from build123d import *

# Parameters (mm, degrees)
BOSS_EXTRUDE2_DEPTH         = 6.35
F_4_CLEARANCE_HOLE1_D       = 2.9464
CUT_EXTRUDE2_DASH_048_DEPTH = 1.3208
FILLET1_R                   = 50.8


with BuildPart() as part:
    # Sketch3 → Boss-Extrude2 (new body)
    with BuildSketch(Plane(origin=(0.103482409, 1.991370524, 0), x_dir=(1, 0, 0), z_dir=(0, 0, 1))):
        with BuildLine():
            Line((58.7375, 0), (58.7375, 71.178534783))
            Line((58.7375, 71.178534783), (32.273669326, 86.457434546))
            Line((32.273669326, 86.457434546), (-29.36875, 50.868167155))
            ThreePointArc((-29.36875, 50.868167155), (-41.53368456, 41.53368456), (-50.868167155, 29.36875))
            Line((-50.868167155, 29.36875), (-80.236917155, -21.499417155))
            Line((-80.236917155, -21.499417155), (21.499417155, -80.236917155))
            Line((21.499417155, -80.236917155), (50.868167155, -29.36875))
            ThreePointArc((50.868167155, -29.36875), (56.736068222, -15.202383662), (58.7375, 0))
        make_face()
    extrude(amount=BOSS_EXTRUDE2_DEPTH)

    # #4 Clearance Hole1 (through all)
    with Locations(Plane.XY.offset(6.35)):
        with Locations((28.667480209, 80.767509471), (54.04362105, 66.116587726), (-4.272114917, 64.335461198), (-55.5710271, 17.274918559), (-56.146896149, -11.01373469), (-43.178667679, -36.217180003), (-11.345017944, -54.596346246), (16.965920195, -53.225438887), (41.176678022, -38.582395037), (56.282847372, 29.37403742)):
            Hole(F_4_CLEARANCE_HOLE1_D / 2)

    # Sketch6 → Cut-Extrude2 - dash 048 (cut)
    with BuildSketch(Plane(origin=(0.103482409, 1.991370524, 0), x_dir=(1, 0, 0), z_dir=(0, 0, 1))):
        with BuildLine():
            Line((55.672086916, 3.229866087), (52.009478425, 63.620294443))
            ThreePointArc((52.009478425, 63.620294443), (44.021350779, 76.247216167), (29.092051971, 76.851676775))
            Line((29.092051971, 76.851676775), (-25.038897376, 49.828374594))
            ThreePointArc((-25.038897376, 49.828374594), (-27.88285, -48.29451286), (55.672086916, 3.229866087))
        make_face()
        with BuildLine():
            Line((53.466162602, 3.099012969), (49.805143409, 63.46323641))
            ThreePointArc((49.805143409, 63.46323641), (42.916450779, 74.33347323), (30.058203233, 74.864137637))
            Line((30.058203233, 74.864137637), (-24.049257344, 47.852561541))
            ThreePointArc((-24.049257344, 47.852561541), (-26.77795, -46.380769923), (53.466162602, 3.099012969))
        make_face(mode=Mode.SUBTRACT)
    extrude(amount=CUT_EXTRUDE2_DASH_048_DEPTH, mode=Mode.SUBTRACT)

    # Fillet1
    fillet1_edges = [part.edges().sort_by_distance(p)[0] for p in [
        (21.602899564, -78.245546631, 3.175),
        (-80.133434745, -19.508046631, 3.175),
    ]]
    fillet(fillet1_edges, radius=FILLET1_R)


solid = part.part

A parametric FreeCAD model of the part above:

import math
import FreeCAD as App
import Part
import Sketcher

V = App.Vector
Q = App.Units.Quantity


def edges_at(feature, points):
    """Names of the edges that pass closest to the given points."""
    edges = feature.Shape.Edges
    near = lambda p: min(range(len(edges)), key=lambda i: edges[i].distToShape(Part.Vertex(*p))[0])
    return sorted({f"Edge{near(p) + 1}" for p in points})

doc = App.newDocument("Part")
body = doc.addObject("PartDesign::Body", "Body")

sketch1 = body.newObject("Sketcher::SketchObject", "Sketch")
sketch1.AttachmentSupport = (doc.getObject("XY_Plane"), [""])
sketch1.MapMode = "FlatFace"
sketch1.addGeometry(Part.LineSegment(V(58.840982, 1.991371, 0), V(58.840982, 73.169905, 0)), False)
sketch1.addGeometry(Part.LineSegment(V(58.840982, 73.169905, 0), V(32.377152, 88.448805, 0)), False)
sketch1.addGeometry(Part.LineSegment(V(32.377152, 88.448805, 0), V(-29.265268, 52.859538, 0)), False)
sketch1.addGeometry(Part.ArcOfCircle(Part.Circle(V(0.103482, 1.991371, 0), V(0, 0, 1), 58.7375), math.radians(120), math.radians(150)), False)
sketch1.addGeometry(Part.LineSegment(V(-50.764685, 31.360121, 0), V(-80.133435, -19.508047, 0)), False)
sketch1.addGeometry(Part.LineSegment(V(-80.133435, -19.508047, 0), V(21.6029, -78.245547, 0)), False)
sketch1.addGeometry(Part.LineSegment(V(21.6029, -78.245547, 0), V(50.97165, -27.377379, 0)), False)
sketch1.addGeometry(Part.ArcOfCircle(Part.Circle(V(0.103482, 1.991371, 0), V(0, 0, 1), 58.7375), math.radians(-30), math.radians(0)), False)
sketch1.addConstraint(Sketcher.Constraint("Coincident", 0, 2, 1, 1))
sketch1.addConstraint(Sketcher.Constraint("Coincident", 1, 2, 2, 1))
sketch1.addConstraint(Sketcher.Constraint("Tangent", 2, 2, 3, 1))
sketch1.addConstraint(Sketcher.Constraint("Tangent", 3, 2, 4, 1))
sketch1.addConstraint(Sketcher.Constraint("Coincident", 4, 2, 5, 1))
sketch1.addConstraint(Sketcher.Constraint("Coincident", 5, 2, 6, 1))
sketch1.addConstraint(Sketcher.Constraint("Tangent", 6, 2, 7, 1))
sketch1.addConstraint(Sketcher.Constraint("Tangent", 7, 2, 0, 1))
sketch1.addConstraint(Sketcher.Constraint("Vertical", 0))
sketch1.addConstraint(Sketcher.Constraint("Coincident", 7, 3, 3, 3))
sketch1.addConstraint(Sketcher.Constraint("Equal", 3, 7))
sketch1.addConstraint(Sketcher.Constraint("Perpendicular", 1, 4))
sketch1.addConstraint(Sketcher.Constraint("Perpendicular", 4, 5))
sketch1.addConstraint(Sketcher.Constraint("Perpendicular", 5, 6))
sketch1.addConstraint(Sketcher.Constraint("Angle", 1, Q("150 deg")))
sketch1.addConstraint(Sketcher.Constraint("Angle", 2, Q("-150 deg")))
sketch1.addConstraint(Sketcher.Constraint("Radius", 3, Q("2.3125 in")))
sketch1.addConstraint(Sketcher.Constraint("Distance", 4, Q("2.3125 in")))
sketch1.addConstraint(Sketcher.Constraint("Distance", 1, 30.5578))
sketch1.addConstraint(Sketcher.Constraint("DistanceX", -1, 1, 5, 2, 21.6029))
sketch1.addConstraint(Sketcher.Constraint("DistanceY", -1, 1, 3, 3, 1.991371))
pad1 = body.newObject("PartDesign::Pad", "Pad")
pad1.Profile = sketch1
pad1.Length = Q("0.25 in")

sketch2 = body.newObject("Sketcher::SketchObject", "Sketch001")
sketch2.AttachmentSupport = (doc.getObject("XY_Plane"), [""])
sketch2.MapMode = "FlatFace"
sketch2.AttachmentOffset = App.Placement(V(0, 0, 0.25 * 25.4), App.Rotation())
sketch2.addGeometry(Part.Circle(V(28.66748, 80.767509, 0), V(0, 0, 1), 1.4732), False)
sketch2.addGeometry(Part.Circle(V(54.043621, 66.116588, 0), V(0, 0, 1), 1.4732), False)
sketch2.addGeometry(Part.Circle(V(-4.272115, 64.335461, 0), V(0, 0, 1), 1.4732), False)
sketch2.addGeometry(Part.Circle(V(-55.571027, 17.274919, 0), V(0, 0, 1), 1.4732), False)
sketch2.addGeometry(Part.Circle(V(-56.146896, -11.013735, 0), V(0, 0, 1), 1.4732), False)
sketch2.addGeometry(Part.Circle(V(-43.178668, -36.21718, 0), V(0, 0, 1), 1.4732), False)
sketch2.addGeometry(Part.Circle(V(-11.345018, -54.596346, 0), V(0, 0, 1), 1.4732), False)
sketch2.addGeometry(Part.Circle(V(16.96592, -53.225439, 0), V(0, 0, 1), 1.4732), False)
sketch2.addGeometry(Part.Circle(V(41.176678, -38.582395, 0), V(0, 0, 1), 1.4732), False)
sketch2.addGeometry(Part.Circle(V(56.282847, 29.374037, 0), V(0, 0, 1), 1.4732), False)
sketch2.addConstraint(Sketcher.Constraint("Equal", 0, 1))
sketch2.addConstraint(Sketcher.Constraint("Equal", 1, 2))
sketch2.addConstraint(Sketcher.Constraint("Equal", 2, 3))
sketch2.addConstraint(Sketcher.Constraint("Equal", 3, 4))
sketch2.addConstraint(Sketcher.Constraint("Equal", 4, 5))
sketch2.addConstraint(Sketcher.Constraint("Equal", 5, 6))
sketch2.addConstraint(Sketcher.Constraint("Equal", 6, 7))
sketch2.addConstraint(Sketcher.Constraint("Equal", 7, 8))
sketch2.addConstraint(Sketcher.Constraint("Equal", 8, 9))
sketch2.addConstraint(Sketcher.Constraint("Diameter", 0, Q("0.116 in")))
sketch2.addConstraint(Sketcher.Constraint("DistanceY", 5, 3, 3, 3, 53.492099))
sketch2.addConstraint(Sketcher.Constraint("DistanceY", 7, 3, 2, 3, 117.5609))
sketch2.addConstraint(Sketcher.Constraint("DistanceX", -1, 1, 0, 3, 28.66748))
sketch2.addConstraint(Sketcher.Constraint("DistanceY", -1, 1, 0, 3, 80.767509))
sketch2.addConstraint(Sketcher.Constraint("DistanceX", -1, 1, 1, 3, 54.043621))
sketch2.addConstraint(Sketcher.Constraint("DistanceY", -1, 1, 2, 3, 64.335461))
sketch2.addConstraint(Sketcher.Constraint("DistanceY", -1, 1, 3, 3, 17.274919))
sketch2.addConstraint(Sketcher.Constraint("DistanceX", -1, 1, 7, 3, 16.96592))
sketch2.addConstraint(Sketcher.Constraint("DistanceX", -1, 1, 8, 3, 41.176678))
sketch2.addConstraint(Sketcher.Constraint("DistanceY", 1, 3, 0, 3, 14.650922))
sketch2.addConstraint(Sketcher.Constraint("DistanceX", 3, 3, 1, 3, 109.614648))
sketch2.addConstraint(Sketcher.Constraint("DistanceX", 4, 3, 3, 3, 0.575869))
sketch2.addConstraint(Sketcher.Constraint("DistanceX", 4, 3, 2, 3, 51.874781))
sketch2.addConstraint(Sketcher.Constraint("DistanceX", 4, 3, 5, 3, 12.968228))
sketch2.addConstraint(Sketcher.Constraint("DistanceX", 5, 3, 6, 3, 31.83365))
sketch2.addConstraint(Sketcher.Constraint("DistanceY", 6, 3, 4, 3, 43.582612))
sketch2.addConstraint(Sketcher.Constraint("DistanceY", 6, 3, 8, 3, 16.013951))
sketch2.addConstraint(Sketcher.Constraint("DistanceY", 9, 3, 1, 3, 36.74255))
sketch2.addConstraint(Sketcher.Constraint("DistanceX", 8, 3, 9, 3, 15.106169))
sketch2.addConstraint(Sketcher.Constraint("DistanceY", 4, 3, -1, 1, 11.013735))
doc.recompute()
hole = body.newObject("PartDesign::Hole", "Hole")
hole.Profile = sketch2
hole.ThreadType = "None"
hole.Diameter = Q("0.116 in")
hole.DepthType = "ThroughAll"

sketch3 = body.newObject("Sketcher::SketchObject", "Sketch002")
sketch3.AttachmentSupport = (doc.getObject("XY_Plane"), [""])
sketch3.MapMode = "FlatFace"
sketch3.addGeometry(Part.LineSegment(V(55.775569, 5.221237, 0), V(52.112961, 65.611665, 0)), False)
sketch3.addGeometry(Part.ArcOfCircle(Part.Circle(V(36.084067, 64.311571, 0), V(0, 0, 1), 16.081532), math.radians(4.637075), math.radians(115.362925)), False)
sketch3.addGeometry(Part.LineSegment(V(29.195534, 78.843047, 0), V(-24.935415, 51.819745, 0)), False)
sketch3.addGeometry(Part.ArcOfCircle(Part.Circle(V(0.103482, 1.991371, 0), V(0, 0, 1), 55.7657), math.radians(116.679656), math.radians(363.320344)), False)
sketch3.addGeometry(Part.LineSegment(V(49.908626, 65.454607, 0), V(53.569645, 5.090383, 0)), False)
sketch3.addGeometry(Part.ArcOfCircle(Part.Circle(V(0.103482, 1.991371, 0), V(0, 0, 1), 53.5559), math.radians(116.682726), math.radians(363.317274)), False)
sketch3.addGeometry(Part.LineSegment(V(-23.945775, 49.843932, 0), V(30.161686, 76.855508, 0)), False)
sketch3.addGeometry(Part.ArcOfCircle(Part.Circle(V(36.084067, 64.311571, 0), V(0, 0, 1), 13.871732), math.radians(4.726552), math.radians(115.273448)), False)
sketch3.addConstraint(Sketcher.Constraint("Coincident", 0, 2, 1, 1))
sketch3.addConstraint(Sketcher.Constraint("Coincident", 1, 2, 2, 1))
sketch3.addConstraint(Sketcher.Constraint("Coincident", 2, 2, 3, 1))
sketch3.addConstraint(Sketcher.Constraint("Coincident", 3, 2, 0, 1))
sketch3.addConstraint(Sketcher.Constraint("Coincident", 4, 2, 5, 2))
sketch3.addConstraint(Sketcher.Constraint("Coincident", 5, 1, 6, 1))
sketch3.addConstraint(Sketcher.Constraint("Coincident", 6, 2, 7, 2))
sketch3.addConstraint(Sketcher.Constraint("Coincident", 7, 1, 4, 1))
sketch3.addConstraint(Sketcher.Constraint("Coincident", 5, 3, 3, 3))
sketch3.addConstraint(Sketcher.Constraint("Coincident", 7, 3, 1, 3))
sketch3.addConstraint(Sketcher.Constraint("Parallel", 0, 4))
sketch3.addConstraint(Sketcher.Constraint("Parallel", 2, 6))
sketch3.addConstraint(Sketcher.Constraint("Equal", 0, 2))
sketch3.addConstraint(Sketcher.Constraint("Equal", 4, 6))
sketch3.addConstraint(Sketcher.Constraint("Radius", 3, Q("2.1955 in")))
sketch3.addConstraint(Sketcher.Constraint("Radius", 5, Q("2.1085 in")))
sketch3.addConstraint(Sketcher.Constraint("Radius", 1, 16.081532))
sketch3.addConstraint(Sketcher.Constraint("Radius", 7, 13.871732))
sketch3.addConstraint(Sketcher.Constraint("DistanceY", 3, 3, 1, 3, 62.320201))
sketch3.addConstraint(Sketcher.Constraint("DistanceY", 7, 1, 6, 2, 11.400901))
sketch3.addConstraint(Sketcher.Constraint("Distance", 4, 60.47514))
sketch3.addConstraint(Sketcher.Constraint("DistanceY", -1, 1, 1, 3, 64.311571))
sketch3.addConstraint(Sketcher.Constraint("DistanceX", -1, 1, 0, 2, 52.112961))
sketch3.addConstraint(Sketcher.Constraint("DistanceX", -1, 1, 3, 2, 55.775569))
sketch3.addConstraint(Sketcher.Constraint("DistanceY", -1, 1, 6, 2, 76.855508))
sketch3.addConstraint(Sketcher.Constraint("DistanceX", 3, 3, 0, 2, 52.009478))
pocket1 = body.newObject("PartDesign::Pocket", "Pocket")
pocket1.Profile = sketch3
pocket1.Length = Q("0.052 in")
pocket1.Reversed = True
doc.recompute()

fillet = body.newObject("PartDesign::Fillet", "Fillet")
fillet.Base = (pocket1, edges_at(pocket1, [(21.603, -78.246, 3.175), (-80.133, -19.508, 3.175)]))
fillet.Radius = Q("2 in")

doc.recompute()
